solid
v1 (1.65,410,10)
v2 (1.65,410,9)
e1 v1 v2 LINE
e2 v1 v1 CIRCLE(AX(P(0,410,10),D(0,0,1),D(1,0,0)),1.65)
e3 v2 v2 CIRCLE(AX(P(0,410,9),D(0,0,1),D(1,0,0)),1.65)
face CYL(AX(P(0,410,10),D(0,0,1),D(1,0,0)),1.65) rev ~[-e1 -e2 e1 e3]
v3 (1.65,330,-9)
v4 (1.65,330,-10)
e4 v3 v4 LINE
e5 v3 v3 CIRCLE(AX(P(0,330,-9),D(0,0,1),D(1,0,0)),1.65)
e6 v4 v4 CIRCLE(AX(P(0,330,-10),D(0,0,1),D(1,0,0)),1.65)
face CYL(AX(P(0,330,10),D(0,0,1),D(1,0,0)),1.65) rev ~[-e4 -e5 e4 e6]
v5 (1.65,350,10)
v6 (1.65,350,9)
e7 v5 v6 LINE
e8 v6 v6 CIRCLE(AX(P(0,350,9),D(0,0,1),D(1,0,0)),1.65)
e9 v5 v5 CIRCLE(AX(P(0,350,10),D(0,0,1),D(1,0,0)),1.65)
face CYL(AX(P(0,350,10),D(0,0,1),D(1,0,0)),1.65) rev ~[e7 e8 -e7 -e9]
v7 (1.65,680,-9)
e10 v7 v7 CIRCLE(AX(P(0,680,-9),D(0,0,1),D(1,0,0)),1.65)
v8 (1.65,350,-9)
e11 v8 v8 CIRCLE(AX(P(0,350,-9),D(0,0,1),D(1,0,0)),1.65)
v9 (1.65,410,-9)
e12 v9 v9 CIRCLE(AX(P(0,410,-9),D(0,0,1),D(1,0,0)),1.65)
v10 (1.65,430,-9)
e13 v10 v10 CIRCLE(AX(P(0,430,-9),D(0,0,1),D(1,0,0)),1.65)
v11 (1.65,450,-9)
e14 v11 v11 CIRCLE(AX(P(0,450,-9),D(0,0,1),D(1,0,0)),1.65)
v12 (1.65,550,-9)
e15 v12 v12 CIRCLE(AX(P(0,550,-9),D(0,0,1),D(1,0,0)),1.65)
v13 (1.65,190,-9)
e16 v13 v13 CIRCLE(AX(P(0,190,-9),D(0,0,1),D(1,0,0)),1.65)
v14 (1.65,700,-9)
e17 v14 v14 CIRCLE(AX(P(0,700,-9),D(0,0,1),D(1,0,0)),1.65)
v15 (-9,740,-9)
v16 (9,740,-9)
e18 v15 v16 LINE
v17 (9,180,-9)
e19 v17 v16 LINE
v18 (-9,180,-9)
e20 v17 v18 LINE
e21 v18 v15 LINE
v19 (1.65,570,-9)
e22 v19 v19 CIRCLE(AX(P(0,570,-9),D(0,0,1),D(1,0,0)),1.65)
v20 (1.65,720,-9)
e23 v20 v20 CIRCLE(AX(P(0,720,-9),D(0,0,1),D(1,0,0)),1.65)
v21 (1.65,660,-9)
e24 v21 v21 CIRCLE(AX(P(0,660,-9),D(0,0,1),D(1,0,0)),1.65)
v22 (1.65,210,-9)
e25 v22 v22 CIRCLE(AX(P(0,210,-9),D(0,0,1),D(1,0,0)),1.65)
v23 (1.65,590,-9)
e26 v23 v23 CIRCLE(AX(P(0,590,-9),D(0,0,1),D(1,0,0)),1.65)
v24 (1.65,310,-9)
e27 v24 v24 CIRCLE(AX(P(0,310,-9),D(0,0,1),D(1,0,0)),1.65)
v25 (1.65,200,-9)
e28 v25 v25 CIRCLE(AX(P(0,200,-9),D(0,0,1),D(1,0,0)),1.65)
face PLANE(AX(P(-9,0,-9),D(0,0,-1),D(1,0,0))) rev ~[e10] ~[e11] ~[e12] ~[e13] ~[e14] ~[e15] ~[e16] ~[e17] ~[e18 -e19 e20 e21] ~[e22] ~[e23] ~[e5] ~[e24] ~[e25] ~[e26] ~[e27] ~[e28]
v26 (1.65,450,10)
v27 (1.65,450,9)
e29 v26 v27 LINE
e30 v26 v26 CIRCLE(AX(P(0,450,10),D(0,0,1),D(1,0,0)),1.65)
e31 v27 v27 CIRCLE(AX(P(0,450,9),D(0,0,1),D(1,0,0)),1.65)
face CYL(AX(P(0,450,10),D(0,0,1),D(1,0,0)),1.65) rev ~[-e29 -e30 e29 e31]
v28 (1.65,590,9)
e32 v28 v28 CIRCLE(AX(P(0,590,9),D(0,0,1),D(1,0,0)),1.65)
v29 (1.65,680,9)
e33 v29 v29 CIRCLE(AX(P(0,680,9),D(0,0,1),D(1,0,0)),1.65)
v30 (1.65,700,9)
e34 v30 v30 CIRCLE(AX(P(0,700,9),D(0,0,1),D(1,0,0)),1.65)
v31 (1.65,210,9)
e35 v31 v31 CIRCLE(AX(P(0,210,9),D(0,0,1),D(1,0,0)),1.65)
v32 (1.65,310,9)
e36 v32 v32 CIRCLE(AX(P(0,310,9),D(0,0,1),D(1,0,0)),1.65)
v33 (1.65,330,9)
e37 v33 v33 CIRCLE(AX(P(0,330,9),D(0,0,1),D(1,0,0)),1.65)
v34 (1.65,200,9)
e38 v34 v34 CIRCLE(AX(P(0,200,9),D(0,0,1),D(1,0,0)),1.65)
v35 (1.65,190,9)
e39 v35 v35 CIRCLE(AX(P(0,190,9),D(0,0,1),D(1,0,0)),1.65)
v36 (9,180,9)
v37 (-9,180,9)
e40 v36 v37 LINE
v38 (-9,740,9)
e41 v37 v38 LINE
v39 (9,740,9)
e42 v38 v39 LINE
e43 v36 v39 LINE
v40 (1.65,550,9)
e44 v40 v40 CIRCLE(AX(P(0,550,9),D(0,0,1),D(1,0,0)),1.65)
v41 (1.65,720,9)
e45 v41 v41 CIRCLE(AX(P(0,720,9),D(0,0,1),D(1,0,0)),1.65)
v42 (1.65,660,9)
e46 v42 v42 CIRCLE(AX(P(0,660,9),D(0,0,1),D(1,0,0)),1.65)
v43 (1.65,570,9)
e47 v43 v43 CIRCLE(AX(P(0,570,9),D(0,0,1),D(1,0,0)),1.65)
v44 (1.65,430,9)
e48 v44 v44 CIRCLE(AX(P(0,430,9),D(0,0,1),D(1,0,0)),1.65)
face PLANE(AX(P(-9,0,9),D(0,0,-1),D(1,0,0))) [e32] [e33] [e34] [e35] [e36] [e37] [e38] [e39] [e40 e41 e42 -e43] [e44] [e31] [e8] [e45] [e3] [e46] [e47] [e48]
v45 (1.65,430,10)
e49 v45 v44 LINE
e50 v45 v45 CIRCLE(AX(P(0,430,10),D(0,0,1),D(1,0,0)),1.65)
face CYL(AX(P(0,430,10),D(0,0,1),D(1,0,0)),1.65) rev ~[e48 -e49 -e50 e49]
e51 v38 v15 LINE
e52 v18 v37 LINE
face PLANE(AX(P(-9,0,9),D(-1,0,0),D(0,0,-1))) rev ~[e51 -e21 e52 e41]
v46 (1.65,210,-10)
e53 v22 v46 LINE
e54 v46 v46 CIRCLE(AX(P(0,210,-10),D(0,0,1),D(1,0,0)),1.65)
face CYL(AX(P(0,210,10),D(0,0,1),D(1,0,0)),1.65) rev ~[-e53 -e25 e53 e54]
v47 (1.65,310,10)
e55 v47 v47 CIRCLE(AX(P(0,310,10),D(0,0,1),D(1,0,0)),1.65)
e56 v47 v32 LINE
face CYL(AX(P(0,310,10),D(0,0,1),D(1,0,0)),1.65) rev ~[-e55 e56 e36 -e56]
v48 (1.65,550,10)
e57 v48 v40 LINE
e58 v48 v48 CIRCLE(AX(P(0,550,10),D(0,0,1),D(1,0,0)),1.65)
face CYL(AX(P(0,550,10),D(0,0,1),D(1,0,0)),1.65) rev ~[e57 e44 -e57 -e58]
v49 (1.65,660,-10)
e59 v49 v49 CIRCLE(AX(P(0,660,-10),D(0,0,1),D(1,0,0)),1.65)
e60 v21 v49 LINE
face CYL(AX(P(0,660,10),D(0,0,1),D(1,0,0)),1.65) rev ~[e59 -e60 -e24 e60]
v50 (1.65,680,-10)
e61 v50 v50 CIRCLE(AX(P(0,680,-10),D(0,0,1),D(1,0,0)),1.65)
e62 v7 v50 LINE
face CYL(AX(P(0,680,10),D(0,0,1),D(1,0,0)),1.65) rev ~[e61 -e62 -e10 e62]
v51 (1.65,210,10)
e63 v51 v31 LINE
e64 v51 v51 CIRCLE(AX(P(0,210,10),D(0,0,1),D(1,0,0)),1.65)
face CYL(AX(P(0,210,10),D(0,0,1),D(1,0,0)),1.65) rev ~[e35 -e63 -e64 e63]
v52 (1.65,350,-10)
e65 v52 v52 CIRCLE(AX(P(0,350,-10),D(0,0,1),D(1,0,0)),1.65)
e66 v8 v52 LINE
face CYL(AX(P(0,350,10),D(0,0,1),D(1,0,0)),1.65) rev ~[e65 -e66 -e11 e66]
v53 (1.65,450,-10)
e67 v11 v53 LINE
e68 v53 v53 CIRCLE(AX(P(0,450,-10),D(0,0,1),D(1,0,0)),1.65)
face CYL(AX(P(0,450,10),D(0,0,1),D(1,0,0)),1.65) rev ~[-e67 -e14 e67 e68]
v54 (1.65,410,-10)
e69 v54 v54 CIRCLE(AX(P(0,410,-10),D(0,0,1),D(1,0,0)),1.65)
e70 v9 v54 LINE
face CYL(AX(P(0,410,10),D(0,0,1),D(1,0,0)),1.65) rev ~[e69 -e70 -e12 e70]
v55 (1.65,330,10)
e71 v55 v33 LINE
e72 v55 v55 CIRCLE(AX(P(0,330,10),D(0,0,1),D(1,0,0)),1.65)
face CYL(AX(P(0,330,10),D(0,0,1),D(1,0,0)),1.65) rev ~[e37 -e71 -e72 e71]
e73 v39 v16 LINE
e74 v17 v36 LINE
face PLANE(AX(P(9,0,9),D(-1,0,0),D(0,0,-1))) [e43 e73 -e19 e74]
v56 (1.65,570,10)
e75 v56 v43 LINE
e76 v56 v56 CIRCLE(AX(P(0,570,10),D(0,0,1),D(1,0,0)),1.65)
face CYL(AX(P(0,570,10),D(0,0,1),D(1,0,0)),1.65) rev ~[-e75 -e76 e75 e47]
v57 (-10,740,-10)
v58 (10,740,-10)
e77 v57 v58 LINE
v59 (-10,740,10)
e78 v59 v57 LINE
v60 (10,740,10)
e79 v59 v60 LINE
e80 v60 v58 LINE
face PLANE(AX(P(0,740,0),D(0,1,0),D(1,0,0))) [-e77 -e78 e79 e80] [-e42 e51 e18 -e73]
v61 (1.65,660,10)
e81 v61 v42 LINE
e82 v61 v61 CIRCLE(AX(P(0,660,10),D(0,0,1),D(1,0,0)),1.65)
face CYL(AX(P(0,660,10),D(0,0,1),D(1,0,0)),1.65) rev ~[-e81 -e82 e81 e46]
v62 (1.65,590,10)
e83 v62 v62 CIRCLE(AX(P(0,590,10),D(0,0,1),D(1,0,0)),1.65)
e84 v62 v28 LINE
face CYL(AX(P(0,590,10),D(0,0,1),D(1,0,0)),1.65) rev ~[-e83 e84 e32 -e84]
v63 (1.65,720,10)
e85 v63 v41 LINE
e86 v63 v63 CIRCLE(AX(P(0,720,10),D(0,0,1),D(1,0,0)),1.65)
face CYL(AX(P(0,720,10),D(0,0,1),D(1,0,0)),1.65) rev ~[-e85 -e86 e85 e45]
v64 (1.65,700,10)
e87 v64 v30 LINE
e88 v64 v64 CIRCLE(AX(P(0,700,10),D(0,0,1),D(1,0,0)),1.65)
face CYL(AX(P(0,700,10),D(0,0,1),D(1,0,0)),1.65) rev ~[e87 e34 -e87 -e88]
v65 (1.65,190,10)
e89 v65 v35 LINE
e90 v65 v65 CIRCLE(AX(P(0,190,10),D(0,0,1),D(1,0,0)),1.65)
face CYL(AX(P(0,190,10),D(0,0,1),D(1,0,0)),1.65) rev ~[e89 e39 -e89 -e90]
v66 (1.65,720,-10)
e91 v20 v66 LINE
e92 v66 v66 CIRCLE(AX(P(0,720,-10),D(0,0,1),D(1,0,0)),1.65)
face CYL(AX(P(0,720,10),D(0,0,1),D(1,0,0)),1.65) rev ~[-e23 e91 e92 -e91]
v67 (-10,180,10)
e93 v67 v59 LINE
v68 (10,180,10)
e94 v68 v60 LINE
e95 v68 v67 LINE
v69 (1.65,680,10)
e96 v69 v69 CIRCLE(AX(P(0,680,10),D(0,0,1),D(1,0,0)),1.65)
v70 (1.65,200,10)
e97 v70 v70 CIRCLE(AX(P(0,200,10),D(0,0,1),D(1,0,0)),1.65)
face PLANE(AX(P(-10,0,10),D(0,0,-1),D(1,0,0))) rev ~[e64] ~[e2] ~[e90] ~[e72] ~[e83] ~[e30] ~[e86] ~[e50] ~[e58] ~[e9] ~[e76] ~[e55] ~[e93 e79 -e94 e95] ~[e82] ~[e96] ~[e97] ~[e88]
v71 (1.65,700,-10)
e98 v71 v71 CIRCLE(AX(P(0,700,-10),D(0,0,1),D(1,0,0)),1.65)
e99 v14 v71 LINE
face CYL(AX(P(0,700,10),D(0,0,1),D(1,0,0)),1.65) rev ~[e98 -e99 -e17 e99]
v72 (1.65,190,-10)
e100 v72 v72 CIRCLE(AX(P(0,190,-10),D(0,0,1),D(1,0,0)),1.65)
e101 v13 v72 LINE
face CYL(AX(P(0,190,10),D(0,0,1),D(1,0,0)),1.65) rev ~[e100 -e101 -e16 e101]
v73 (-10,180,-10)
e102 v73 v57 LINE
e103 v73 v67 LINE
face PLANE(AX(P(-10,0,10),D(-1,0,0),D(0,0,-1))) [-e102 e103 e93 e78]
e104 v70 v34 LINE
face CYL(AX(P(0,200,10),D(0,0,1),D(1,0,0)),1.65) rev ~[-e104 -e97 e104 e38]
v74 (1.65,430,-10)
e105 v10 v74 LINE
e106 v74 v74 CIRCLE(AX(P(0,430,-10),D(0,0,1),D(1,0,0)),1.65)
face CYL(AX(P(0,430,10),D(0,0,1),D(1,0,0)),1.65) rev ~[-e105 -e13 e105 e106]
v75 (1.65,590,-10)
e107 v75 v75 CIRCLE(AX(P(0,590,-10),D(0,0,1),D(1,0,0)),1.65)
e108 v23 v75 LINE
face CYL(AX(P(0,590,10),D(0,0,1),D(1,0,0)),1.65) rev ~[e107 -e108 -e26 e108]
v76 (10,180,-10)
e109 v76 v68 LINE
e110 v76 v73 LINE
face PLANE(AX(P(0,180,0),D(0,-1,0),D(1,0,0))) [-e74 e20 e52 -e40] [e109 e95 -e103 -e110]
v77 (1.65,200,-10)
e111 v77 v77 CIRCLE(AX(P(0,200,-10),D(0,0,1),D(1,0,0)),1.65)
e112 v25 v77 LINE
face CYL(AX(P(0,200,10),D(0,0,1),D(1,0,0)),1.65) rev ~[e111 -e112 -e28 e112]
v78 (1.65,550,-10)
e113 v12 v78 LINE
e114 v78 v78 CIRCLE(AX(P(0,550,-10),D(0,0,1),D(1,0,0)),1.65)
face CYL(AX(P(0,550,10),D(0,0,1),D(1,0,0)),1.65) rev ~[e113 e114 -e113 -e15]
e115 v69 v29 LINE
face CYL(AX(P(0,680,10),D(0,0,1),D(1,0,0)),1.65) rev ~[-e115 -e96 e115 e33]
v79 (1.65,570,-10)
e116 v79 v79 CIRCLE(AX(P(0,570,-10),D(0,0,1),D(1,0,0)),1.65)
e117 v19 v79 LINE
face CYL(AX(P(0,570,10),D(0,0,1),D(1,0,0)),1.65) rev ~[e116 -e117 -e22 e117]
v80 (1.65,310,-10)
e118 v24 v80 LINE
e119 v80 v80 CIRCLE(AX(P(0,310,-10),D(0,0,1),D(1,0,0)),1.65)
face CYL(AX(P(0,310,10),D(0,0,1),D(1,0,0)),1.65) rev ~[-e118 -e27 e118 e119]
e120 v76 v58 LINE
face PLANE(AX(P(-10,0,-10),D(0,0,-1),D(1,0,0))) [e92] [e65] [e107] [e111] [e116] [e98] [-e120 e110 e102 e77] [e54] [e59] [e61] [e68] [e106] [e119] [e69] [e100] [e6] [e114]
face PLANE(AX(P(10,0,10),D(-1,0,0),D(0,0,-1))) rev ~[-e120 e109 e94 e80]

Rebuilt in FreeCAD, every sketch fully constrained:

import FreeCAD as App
import Part
import Sketcher

V = App.Vector


def add_polygon(sketch, points):
    """Adds a closed chain of lines whose ends are joined by coincident constraints."""
    first, n = sketch.GeometryCount, len(points)
    for a, b in zip(points, points[1:] + points[:1]):
        sketch.addGeometry(Part.LineSegment(App.Vector(*a, 0), App.Vector(*b, 0)), False)
    for i in range(n):
        sketch.addConstraint(Sketcher.Constraint("Coincident", first + i, 2, first + (i + 1) % n, 1))

doc = App.newDocument("Part")
body = doc.addObject("PartDesign::Body", "Body")

sketch1 = body.newObject("Sketcher::SketchObject", "Sketch")
sketch1.AttachmentSupport = (doc.getObject("XZ_Plane"), [""])
sketch1.MapMode = "FlatFace"
add_polygon(sketch1, [(-10, -10), (-10, 10), (10, 10), (10, -10)])
add_polygon(sketch1, [(9, 9), (-9, 9), (-9, -9), (9, -9)])
sketch1.addConstraint(Sketcher.Constraint("Vertical", 0))
sketch1.addConstraint(Sketcher.Constraint("Horizontal", 1))
sketch1.addConstraint(Sketcher.Constraint("Vertical", 2))
sketch1.addConstraint(Sketcher.Constraint("Horizontal", 3))
sketch1.addConstraint(Sketcher.Constraint("Horizontal", 4))
sketch1.addConstraint(Sketcher.Constraint("Vertical", 5))
sketch1.addConstraint(Sketcher.Constraint("Horizontal", 6))
sketch1.addConstraint(Sketcher.Constraint("Vertical", 7))
sketch1.addConstraint(Sketcher.Constraint("Symmetric", 0, 2, 2, 2, -1, 1))
sketch1.addConstraint(Sketcher.Constraint("Symmetric", 4, 2, 6, 2, -1, 1))
sketch1.addConstraint(Sketcher.Constraint("Equal", 3, 0))
sketch1.addConstraint(Sketcher.Constraint("Equal", 6, 5))
sketch1.addConstraint(Sketcher.Constraint("DistanceX", 1, 1, 1, 2, 20.0))
sketch1.addConstraint(Sketcher.Constraint("DistanceX", 4, 2, 4, 1, 18.0))
pad1 = body.newObject("PartDesign::Pad", "Pad")
pad1.Profile = sketch1
pad1.Length = 740
pad1.Reversed = True

sketch2 = body.newObject("Sketcher::SketchObject", "Sketch001")
sketch2.AttachmentSupport = (doc.getObject("XY_Plane"), [""])
sketch2.MapMode = "FlatFace"
sketch2.AttachmentOffset = App.Placement(V(0, 0, 10), App.Rotation())
sketch2.addGeometry(Part.Circle(V(0, 720, 0), V(0, 0, 1), 1.6), False)
sketch2.addGeometry(Part.Circle(V(0, 700, 0), V(0, 0, 1), 1.6), False)
sketch2.addGeometry(Part.Circle(V(0, 680, 0), V(0, 0, 1), 1.6), False)
sketch2.addGeometry(Part.Circle(V(0, 660, 0), V(0, 0, 1), 1.6), False)
sketch2.addGeometry(Part.Circle(V(0, 590, 0), V(0, 0, 1), 1.6), False)
sketch2.addGeometry(Part.Circle(V(0, 570, 0), V(0, 0, 1), 1.6), False)
sketch2.addGeometry(Part.Circle(V(0, 550, 0), V(0, 0, 1), 1.6), False)
sketch2.addGeometry(Part.Circle(V(0, 450, 0), V(0, 0, 1), 1.6), False)
sketch2.addGeometry(Part.Circle(V(0, 430, 0), V(0, 0, 1), 1.6), False)
sketch2.addGeometry(Part.Circle(V(0, 410, 0), V(0, 0, 1), 1.6), False)
sketch2.addConstraint(Sketcher.Constraint("Equal", 0, 1))
sketch2.addConstraint(Sketcher.Constraint("Equal", 1, 2))
sketch2.addConstraint(Sketcher.Constraint("Equal", 2, 3))
sketch2.addConstraint(Sketcher.Constraint("Equal", 3, 4))
sketch2.addConstraint(Sketcher.Constraint("Equal", 4, 5))
sketch2.addConstraint(Sketcher.Constraint("Equal", 5, 6))
sketch2.addConstraint(Sketcher.Constraint("Equal", 6, 7))
sketch2.addConstraint(Sketcher.Constraint("Equal", 7, 8))
sketch2.addConstraint(Sketcher.Constraint("Equal", 8, 9))
sketch2.addConstraint(Sketcher.Constraint("PointOnObject", 0, 3, -2))
sketch2.addConstraint(Sketcher.Constraint("PointOnObject", 1, 3, -2))
sketch2.addConstraint(Sketcher.Constraint("PointOnObject", 2, 3, -2))
sketch2.addConstraint(Sketcher.Constraint("PointOnObject", 3, 3, -2))
sketch2.addConstraint(Sketcher.Constraint("PointOnObject", 4, 3, -2))
sketch2.addConstraint(Sketcher.Constraint("PointOnObject", 5, 3, -2))
sketch2.addConstraint(Sketcher.Constraint("PointOnObject", 6, 3, -2))
sketch2.addConstraint(Sketcher.Constraint("PointOnObject", 7, 3, -2))
sketch2.addConstraint(Sketcher.Constraint("PointOnObject", 8, 3, -2))
sketch2.addConstraint(Sketcher.Constraint("PointOnObject", 9, 3, -2))
sketch2.addConstraint(Sketcher.Constraint("Diameter", 0, 3.3))
sketch2.addConstraint(Sketcher.Constraint("DistanceY", -1, 1, 0, 3, 720.0))
sketch2.addConstraint(Sketcher.Constraint("DistanceY", -1, 1, 1, 3, 700.0))
sketch2.addConstraint(Sketcher.Constraint("DistanceY", -1, 1, 2, 3, 680.0))
sketch2.addConstraint(Sketcher.Constraint("DistanceY", -1, 1, 3, 3, 660.0))
sketch2.addConstraint(Sketcher.Constraint("DistanceY", -1, 1, 4, 3, 590.0))
sketch2.addConstraint(Sketcher.Constraint("DistanceY", -1, 1, 5, 3, 570.0))
sketch2.addConstraint(Sketcher.Constraint("DistanceY", -1, 1, 6, 3, 550.0))
sketch2.addConstraint(Sketcher.Constraint("DistanceY", -1, 1, 7, 3, 450.0))
sketch2.addConstraint(Sketcher.Constraint("DistanceY", -1, 1, 8, 3, 430.0))
sketch2.addConstraint(Sketcher.Constraint("DistanceY", -1, 1, 9, 3, 410.0))
pocket1 = body.newObject("PartDesign::Pocket", "Pocket")
pocket1.Profile = sketch2
pocket1.Length = 32

sketch3 = body.newObject("Sketcher::SketchObject", "Sketch002")
sketch3.AttachmentSupport = (doc.getObject("XZ_Plane"), [""])
sketch3.MapMode = "FlatFace"
sketch3.addGeometry(Part.Circle(V(0, 0, 0), V(0, 0, 1), 15), False)
sketch3.addConstraint(Sketcher.Constraint("Coincident", 0, 3, -1, 1))
sketch3.addConstraint(Sketcher.Constraint("Diameter", 0, 30.794794))
pocket2 = body.newObject("PartDesign::Pocket", "Pocket001")
pocket2.Profile = sketch3
pocket2.Length = 180

sketch4 = body.newObject("Sketcher::SketchObject", "Sketch003")
sketch4.AttachmentSupport = (doc.getObject("XY_Plane"), [""])
sketch4.MapMode = "FlatFace"
sketch4.AttachmentOffset = App.Placement(V(0, 0, 10), App.Rotation())
sketch4.addGeometry(Part.Circle(V(0, 190, 0), V(0, 0, 1), 1.6), False)
sketch4.addGeometry(Part.Circle(V(0, 200, 0), V(0, 0, 1), 1.6), False)
sketch4.addGeometry(Part.Circle(V(0, 210, 0), V(0, 0, 1), 1.6), False)
sketch4.addGeometry(Part.Circle(V(0, 310, 0), V(0, 0, 1), 1.6), False)
sketch4.addGeometry(Part.Circle(V(0, 330, 0), V(0, 0, 1), 1.6), False)
sketch4.addGeometry(Part.Circle(V(0, 350, 0), V(0, 0, 1), 1.6), False)
sketch4.addConstraint(Sketcher.Constraint("Equal", 0, 1))
sketch4.addConstraint(Sketcher.Constraint("Equal", 1, 2))
sketch4.addConstraint(Sketcher.Constraint("Equal", 2, 3))
sketch4.addConstraint(Sketcher.Constraint("Equal", 3, 4))
sketch4.addConstraint(Sketcher.Constraint("Equal", 4, 5))
sketch4.addConstraint(Sketcher.Constraint("PointOnObject", 0, 3, -2))
sketch4.addConstraint(Sketcher.Constraint("PointOnObject", 1, 3, -2))
sketch4.addConstraint(Sketcher.Constraint("PointOnObject", 2, 3, -2))
sketch4.addConstraint(Sketcher.Constraint("PointOnObject", 3, 3, -2))
sketch4.addConstraint(Sketcher.Constraint("PointOnObject", 4, 3, -2))
sketch4.addConstraint(Sketcher.Constraint("PointOnObject", 5, 3, -2))
sketch4.addConstraint(Sketcher.Constraint("Diameter", 0, 3.3))
sketch4.addConstraint(Sketcher.Constraint("DistanceY", -1, 1, 0, 3, 190.0))
sketch4.addConstraint(Sketcher.Constraint("DistanceY", -1, 1, 1, 3, 200.0))
sketch4.addConstraint(Sketcher.Constraint("DistanceY", -1, 1, 2, 3, 210.0))
sketch4.addConstraint(Sketcher.Constraint("DistanceY", -1, 1, 3, 3, 310.0))
sketch4.addConstraint(Sketcher.Constraint("DistanceY", -1, 1, 4, 3, 330.0))
sketch4.addConstraint(Sketcher.Constraint("DistanceY", -1, 1, 5, 3, 350.0))
pocket3 = body.newObject("PartDesign::Pocket", "Pocket002")
pocket3.Profile = sketch4
pocket3.Length = 40

doc.recompute()
